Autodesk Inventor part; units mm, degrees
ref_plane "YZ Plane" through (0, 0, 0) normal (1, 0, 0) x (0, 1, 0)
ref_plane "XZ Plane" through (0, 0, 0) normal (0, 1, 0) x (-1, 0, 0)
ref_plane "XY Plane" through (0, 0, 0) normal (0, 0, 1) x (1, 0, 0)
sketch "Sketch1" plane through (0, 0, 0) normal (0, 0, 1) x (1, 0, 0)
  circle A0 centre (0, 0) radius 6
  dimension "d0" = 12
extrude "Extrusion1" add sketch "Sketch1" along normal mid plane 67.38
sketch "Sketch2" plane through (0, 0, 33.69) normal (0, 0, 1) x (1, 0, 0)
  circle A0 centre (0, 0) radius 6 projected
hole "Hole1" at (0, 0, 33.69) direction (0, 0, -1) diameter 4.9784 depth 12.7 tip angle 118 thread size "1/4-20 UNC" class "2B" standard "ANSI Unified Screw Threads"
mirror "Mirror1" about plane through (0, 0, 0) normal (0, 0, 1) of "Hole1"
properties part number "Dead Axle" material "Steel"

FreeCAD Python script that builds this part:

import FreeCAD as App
import Part
import Sketcher
Q = App.Units.Quantity

doc = App.newDocument("Part")
body = doc.addObject("PartDesign::Body", "Body")

sketch1 = body.newObject("Sketcher::SketchObject", "Sketch")
sketch1.AttachmentSupport = (doc.getObject("XY_Plane"), [""])
sketch1.MapMode = "FlatFace"
sketch1.addGeometry(Part.Circle(App.Vector(0, 0, 0), App.Vector(0, 0, 1), 6), False)
sketch1.addConstraint([
    Sketcher.Constraint("Coincident", 0, 3, -1, 1),
    Sketcher.Constraint("Diameter", 0, 12.0),
])
pad1 = body.newObject("PartDesign::Pad", "Pad")
pad1.Profile = sketch1
pad1.Length = 67.38
pad1.Midplane = True

sketch2 = body.newObject("Sketcher::SketchObject", "Sketch001")
sketch2.AttachmentSupport = (doc.getObject("XY_Plane"), [""])
sketch2.MapMode = "FlatFace"
sketch2.AttachmentOffset = App.Placement(App.Vector(0, 0, 33.69), App.Rotation())
sketch2.addGeometry(Part.Circle(App.Vector(0, 0, 0), App.Vector(0, 0, 1), 2.5), False)
sketch2.addConstraint([
    Sketcher.Constraint("Coincident", 0, 3, -1, 1),
    Sketcher.Constraint("Diameter", 0, Q("0.196 in")),
])
doc.recompute()
hole = body.newObject("PartDesign::Hole", "Hole")
hole.Profile = sketch2
hole.ThreadType = "None"
hole.Diameter = Q("0.196 in")
hole.DepthType = "Dimension"
hole.Depth = Q("0.5 in")
hole.DrillPoint = "Angled"
hole.DrillPointAngle = 118
doc.recompute()

mirrored = body.newObject("PartDesign::Mirrored", "Mirrored")
mirrored.Originals = [hole]
mirrored.MirrorPlane = (doc.getObject("XY_Plane"), [""])
body.Tip = mirrored

doc.recompute()
